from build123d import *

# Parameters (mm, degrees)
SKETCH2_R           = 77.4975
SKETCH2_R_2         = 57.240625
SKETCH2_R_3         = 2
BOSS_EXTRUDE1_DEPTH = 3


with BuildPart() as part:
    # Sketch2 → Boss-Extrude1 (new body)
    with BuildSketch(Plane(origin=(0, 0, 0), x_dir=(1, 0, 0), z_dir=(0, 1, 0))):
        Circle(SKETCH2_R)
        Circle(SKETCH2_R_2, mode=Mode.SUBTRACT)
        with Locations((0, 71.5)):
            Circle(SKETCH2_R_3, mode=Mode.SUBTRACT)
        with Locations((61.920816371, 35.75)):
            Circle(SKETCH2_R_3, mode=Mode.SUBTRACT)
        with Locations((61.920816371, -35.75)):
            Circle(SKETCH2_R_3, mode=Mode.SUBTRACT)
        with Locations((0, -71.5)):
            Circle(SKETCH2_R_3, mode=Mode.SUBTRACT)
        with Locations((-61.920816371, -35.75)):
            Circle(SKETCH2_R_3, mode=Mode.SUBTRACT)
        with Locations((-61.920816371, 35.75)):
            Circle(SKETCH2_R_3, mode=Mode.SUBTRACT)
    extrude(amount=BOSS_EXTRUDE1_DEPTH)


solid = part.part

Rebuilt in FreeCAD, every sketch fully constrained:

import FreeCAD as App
import Part
import Sketcher
Q = App.Units.Quantity

doc = App.newDocument("Part")
body = doc.addObject("PartDesign::Body", "Body")

# Sketch on XZ plane
sketch1 = body.newObject("Sketcher::SketchObject", "Sketch")
sketch1.AttachmentSupport = (doc.getObject("XZ_Plane"), [""])
sketch1.MapMode = "FlatFace"
sketch1.addGeometry([
    Part.Circle(App.Vector(0, 0, 0), App.Vector(0, 0, 1), 77.4975),  # 0
    Part.Circle(App.Vector(-61.920816, 35.75, 0), App.Vector(0, 0, 1), 2),  # 1
    Part.Circle(App.Vector(0, 71.5, 0), App.Vector(0, 0, 1), 2),  # 2
    Part.Circle(App.Vector(61.920816, 35.75, 0), App.Vector(0, 0, 1), 2),  # 3
    Part.Circle(App.Vector(-61.920816, -35.75, 0), App.Vector(0, 0, 1), 2),  # 4
    Part.Circle(App.Vector(0, 0, 0), App.Vector(0, 0, 1), 57.240625),  # 5
    Part.Circle(App.Vector(61.920816, -35.75, 0), App.Vector(0, 0, 1), 2),  # 6
    Part.Circle(App.Vector(0, -71.5, 0), App.Vector(0, 0, 1), 2),  # 7
], False)
sketch1.addConstraint([
    Sketcher.Constraint("Coincident", 0, 3, -1, 1),
    Sketcher.Constraint("Coincident", 5, 3, -1, 1),
    Sketcher.Constraint("Equal", 1, 2),
    Sketcher.Constraint("Equal", 2, 3),
    Sketcher.Constraint("Equal", 3, 4),
    Sketcher.Constraint("Equal", 4, 6),
    Sketcher.Constraint("Equal", 6, 7),
    Sketcher.Constraint("Symmetric", 3, 3, 4, 3, -1, 1),
    Sketcher.Constraint("Symmetric", 1, 3, 6, 3, -1, 1),
    Sketcher.Constraint("Symmetric", 2, 3, 7, 3, -1, 1),
    Sketcher.Constraint("Symmetric", 1, 3, 3, 3, -2),
    Sketcher.Constraint("PointOnObject", 2, 3, -2),
    Sketcher.Constraint("Diameter", 1, Q("4 mm")),
    Sketcher.Constraint("Diameter", 0, Q("154.995 mm")),
    Sketcher.Constraint("DistanceY", -1, 1, 2, 3, Q("71.5 mm")),
    Sketcher.Constraint("DistanceY", 4, 3, 1, 3, Q("71.5 mm")),
    Sketcher.Constraint("Diameter", 5, Q("114.48125 mm")),
    Sketcher.Constraint("DistanceX", 1, 3, -1, 1, Q("61.920816 mm")),
])
pad1 = body.newObject("PartDesign::Pad", "Pad")
pad1.Profile = sketch1
pad1.Length = 3
pad1.Reversed = True

doc.recompute()
